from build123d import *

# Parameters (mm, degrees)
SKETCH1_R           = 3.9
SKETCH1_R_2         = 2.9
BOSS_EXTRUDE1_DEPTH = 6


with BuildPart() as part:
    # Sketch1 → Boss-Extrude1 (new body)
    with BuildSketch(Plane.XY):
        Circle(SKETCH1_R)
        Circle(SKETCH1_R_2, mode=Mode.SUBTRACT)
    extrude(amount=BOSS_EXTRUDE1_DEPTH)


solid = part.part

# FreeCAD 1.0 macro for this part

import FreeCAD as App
import Part
import Sketcher

doc = App.newDocument("Part")
params = doc.addObject("Spreadsheet::Sheet", "Params")
for row, (alias, value) in enumerate([
    ("sketch1_diameter", "7.8 mm"),
    ("sketch1_diameter2", "5.8 mm"),
    ("pad1_length", "6 mm"),
], start=1):
    params.set(f"A{row}", alias)
    params.set(f"B{row}", "=" + value)
    params.setAlias(f"B{row}", alias)

body = doc.addObject("PartDesign::Body", "Body")

sketch1 = body.newObject("Sketcher::SketchObject", "Sketch")
sketch1.AttachmentSupport = (doc.getObject("XY_Plane"), [""])
sketch1.MapMode = "FlatFace"
sketch1.addGeometry([
    Part.Circle(App.Vector(0, 0, 0), App.Vector(0, 0, 1), 3.9),
    Part.Circle(App.Vector(0, 0, 0), App.Vector(0, 0, 1), 2.9),
], False)
sketch1.addConstraint([
    Sketcher.Constraint("Coincident", 0, 3, -1, 1),
    Sketcher.Constraint("Coincident", 1, 3, -1, 1),
    Sketcher.Constraint("Diameter", 0, 7.8),
    Sketcher.Constraint("Diameter", 1, 5.8),
])
sketch1.setExpression("Constraints[2]", "Params.sketch1_diameter")
sketch1.setExpression("Constraints[3]", "Params.sketch1_diameter2")
pad1 = body.newObject("PartDesign::Pad", "Pad")
pad1.Profile = sketch1
pad1.setExpression("Length", "Params.pad1_length")

doc.recompute()
